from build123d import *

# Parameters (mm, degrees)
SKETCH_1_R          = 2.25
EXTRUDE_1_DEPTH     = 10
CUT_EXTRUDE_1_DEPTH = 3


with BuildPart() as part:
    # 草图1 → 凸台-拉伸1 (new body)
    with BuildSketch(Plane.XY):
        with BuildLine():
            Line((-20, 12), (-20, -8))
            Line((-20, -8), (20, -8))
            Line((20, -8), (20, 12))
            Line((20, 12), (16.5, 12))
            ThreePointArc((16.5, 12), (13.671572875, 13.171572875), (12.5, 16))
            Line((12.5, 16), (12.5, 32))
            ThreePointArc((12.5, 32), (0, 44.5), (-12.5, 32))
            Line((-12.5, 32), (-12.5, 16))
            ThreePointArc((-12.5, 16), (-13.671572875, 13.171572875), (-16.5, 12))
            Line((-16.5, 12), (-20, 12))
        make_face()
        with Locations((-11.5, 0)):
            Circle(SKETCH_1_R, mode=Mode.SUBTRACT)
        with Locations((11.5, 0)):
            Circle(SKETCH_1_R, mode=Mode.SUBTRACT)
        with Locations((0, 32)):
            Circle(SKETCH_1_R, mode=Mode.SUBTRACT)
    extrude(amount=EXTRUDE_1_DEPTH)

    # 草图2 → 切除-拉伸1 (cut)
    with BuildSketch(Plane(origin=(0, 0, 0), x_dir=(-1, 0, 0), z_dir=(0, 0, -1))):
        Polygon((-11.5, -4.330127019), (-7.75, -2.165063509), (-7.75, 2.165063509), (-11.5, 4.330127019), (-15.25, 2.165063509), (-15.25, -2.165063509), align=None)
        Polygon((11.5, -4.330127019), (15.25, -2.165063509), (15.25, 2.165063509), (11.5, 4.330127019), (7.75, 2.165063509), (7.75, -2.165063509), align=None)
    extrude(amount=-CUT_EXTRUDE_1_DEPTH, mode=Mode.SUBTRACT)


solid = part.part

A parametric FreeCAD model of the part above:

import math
import FreeCAD as App
import Part
import Sketcher

V = App.Vector
Q = App.Units.Quantity


def add_polygon(sketch, points):
    """Adds a closed chain of lines whose ends are joined by coincident constraints."""
    first, n = sketch.GeometryCount, len(points)
    for a, b in zip(points, points[1:] + points[:1]):
        sketch.addGeometry(Part.LineSegment(App.Vector(*a, 0), App.Vector(*b, 0)), False)
    for i in range(n):
        sketch.addConstraint(Sketcher.Constraint("Coincident", first + i, 2, first + (i + 1) % n, 1))

doc = App.newDocument("Part")
body = doc.addObject("PartDesign::Body", "Body")

# Sketch on XY plane
sketch1 = body.newObject("Sketcher::SketchObject", "Sketch")
sketch1.AttachmentSupport = (doc.getObject("XY_Plane"), [""])
sketch1.MapMode = "FlatFace"
sketch1.addGeometry(Part.LineSegment(V(-20, 12, 0), V(-20, -8, 0)), False)
sketch1.addGeometry(Part.LineSegment(V(-20, -8, 0), V(20, -8, 0)), False)
sketch1.addGeometry(Part.LineSegment(V(20, -8, 0), V(20, 12, 0)), False)
sketch1.addGeometry(Part.LineSegment(V(20, 12, 0), V(16.5, 12, 0)), False)
sketch1.addGeometry(Part.ArcOfCircle(Part.Circle(V(16.5, 16, 0), V(0, 0, 1), 4), math.radians(180), math.radians(270)), False)
sketch1.addGeometry(Part.LineSegment(V(12.5, 16, 0), V(12.5, 32, 0)), False)
sketch1.addGeometry(Part.ArcOfCircle(Part.Circle(V(0, 32, 0), V(0, 0, 1), 12.5), math.radians(0), math.radians(180)), False)
sketch1.addGeometry(Part.LineSegment(V(-12.5, 32, 0), V(-12.5, 16, 0)), False)
sketch1.addGeometry(Part.ArcOfCircle(Part.Circle(V(-16.5, 16, 0), V(0, 0, 1), 4), math.radians(-90), math.radians(0)), False)
sketch1.addGeometry(Part.LineSegment(V(-16.5, 12, 0), V(-20, 12, 0)), False)
sketch1.addGeometry(Part.Circle(V(-11.5, 0, 0), V(0, 0, 1), 2.2), False)
sketch1.addGeometry(Part.Circle(V(11.5, 0, 0), V(0, 0, 1), 2.2), False)
sketch1.addGeometry(Part.Circle(V(0, 32, 0), V(0, 0, 1), 2.2), False)
sketch1.addConstraint(Sketcher.Constraint("Coincident", 0, 2, 1, 1))
sketch1.addConstraint(Sketcher.Constraint("Coincident", 1, 2, 2, 1))
sketch1.addConstraint(Sketcher.Constraint("Coincident", 2, 2, 3, 1))
sketch1.addConstraint(Sketcher.Constraint("Tangent", 3, 2, 4, 2))
sketch1.addConstraint(Sketcher.Constraint("Tangent", 4, 1, 5, 1))
sketch1.addConstraint(Sketcher.Constraint("Tangent", 5, 2, 6, 1))
sketch1.addConstraint(Sketcher.Constraint("Tangent", 6, 2, 7, 1))
sketch1.addConstraint(Sketcher.Constraint("Tangent", 7, 2, 8, 2))
sketch1.addConstraint(Sketcher.Constraint("Tangent", 8, 1, 9, 1))
sketch1.addConstraint(Sketcher.Constraint("Coincident", 9, 2, 0, 1))
sketch1.addConstraint(Sketcher.Constraint("Vertical", 0))
sketch1.addConstraint(Sketcher.Constraint("Horizontal", 1))
sketch1.addConstraint(Sketcher.Constraint("Vertical", 2))
sketch1.addConstraint(Sketcher.Constraint("Horizontal", 3))
sketch1.addConstraint(Sketcher.Constraint("Vertical", 5))
sketch1.addConstraint(Sketcher.Constraint("Vertical", 7))
sketch1.addConstraint(Sketcher.Constraint("Horizontal", 9))
sketch1.addConstraint(Sketcher.Constraint("Coincident", 12, 3, 6, 3))
sketch1.addConstraint(Sketcher.Constraint("Equal", 4, 8))
sketch1.addConstraint(Sketcher.Constraint("Equal", 10, 11))
sketch1.addConstraint(Sketcher.Constraint("Equal", 11, 12))
sketch1.addConstraint(Sketcher.Constraint("Symmetric", 10, 3, 11, 3, -1, 1))
sketch1.addConstraint(Sketcher.Constraint("Symmetric", 4, 3, 8, 3, -2))
sketch1.addConstraint(Sketcher.Constraint("PointOnObject", 10, 3, -1))
sketch1.addConstraint(Sketcher.Constraint("Equal", 3, 9))
sketch1.addConstraint(Sketcher.Constraint("Radius", 4, Q("4 mm")))
sketch1.addConstraint(Sketcher.Constraint("Diameter", 10, Q("4.5 mm")))
sketch1.addConstraint(Sketcher.Constraint("Radius", 6, Q("12.5 mm")))
sketch1.addConstraint(Sketcher.Constraint("DistanceX", 1, 1, 1, 2, Q("40 mm")))
sketch1.addConstraint(Sketcher.Constraint("DistanceY", 0, 2, 0, 1, Q("20 mm")))
sketch1.addConstraint(Sketcher.Constraint("DistanceY", 5, 1, 5, 2, Q("16 mm")))
sketch1.addConstraint(Sketcher.Constraint("DistanceY", -1, 1, 4, 3, Q("16 mm")))
sketch1.addConstraint(Sketcher.Constraint("DistanceX", 8, 3, 10, 3, Q("5 mm")))
pad1 = body.newObject("PartDesign::Pad", "Pad")
pad1.Profile = sketch1
pad1.Length = 10

# Sketch on XY plane
sketch2 = body.newObject("Sketcher::SketchObject", "Sketch001")
sketch2.AttachmentSupport = (doc.getObject("XY_Plane"), [""])
sketch2.MapMode = "FlatFace"
add_polygon(sketch2, [(11.5, -4.3), (7.8, -2.2), (7.8, 2.2), (11.5, 4.3), (15.2, 2.2), (15.2, -2.2)])  # lines 0-5
add_polygon(sketch2, [(-11.5, -4.3), (-15.2, -2.2), (-15.2, 2.2), (-11.5, 4.3), (-7.8, 2.2), (-7.8, -2.2)])  # lines 6-11
sketch2.addConstraint(Sketcher.Constraint("Vertical", 1))
sketch2.addConstraint(Sketcher.Constraint("Vertical", 4))
sketch2.addConstraint(Sketcher.Constraint("Vertical", 7))
sketch2.addConstraint(Sketcher.Constraint("Vertical", 10))
sketch2.addConstraint(Sketcher.Constraint("Symmetric", 3, 2, 6, 2, -1, 1))
sketch2.addConstraint(Sketcher.Constraint("Symmetric", 5, 2, 8, 2, -1, 1))
sketch2.addConstraint(Sketcher.Constraint("Symmetric", 0, 2, 9, 2, -1, 1))
sketch2.addConstraint(Sketcher.Constraint("Symmetric", 2, 2, 11, 2, -1, 1))
sketch2.addConstraint(Sketcher.Constraint("Symmetric", 2, 2, 8, 2, -2))
sketch2.addConstraint(Sketcher.Constraint("Parallel", 0, 3))
sketch2.addConstraint(Sketcher.Constraint("Parallel", 2, 5))
sketch2.addConstraint(Sketcher.Constraint("Parallel", 5, 8))
sketch2.addConstraint(Sketcher.Constraint("Parallel", 8, 11))
sketch2.addConstraint(Sketcher.Constraint("Horizontal", 1, 2, 3, 2))
sketch2.addConstraint(Sketcher.Constraint("Horizontal", 0, 2, 4, 2))
sketch2.addConstraint(Sketcher.Constraint("Angle", 0, Q("150 deg")))
sketch2.addConstraint(Sketcher.Constraint("DistanceX", 6, 2, 0, 2, Q("23 mm")))
sketch2.addConstraint(Sketcher.Constraint("DistanceX", 1, 2, 3, 2, Q("7.5 mm")))
sketch2.addConstraint(Sketcher.Constraint("DistanceY", 1, 1, 1, 2, Q("4.330127 mm")))
pocket1 = body.newObject("PartDesign::Pocket", "Pocket")
pocket1.Profile = sketch2
pocket1.Length = 3
pocket1.Reversed = True

doc.recompute()
